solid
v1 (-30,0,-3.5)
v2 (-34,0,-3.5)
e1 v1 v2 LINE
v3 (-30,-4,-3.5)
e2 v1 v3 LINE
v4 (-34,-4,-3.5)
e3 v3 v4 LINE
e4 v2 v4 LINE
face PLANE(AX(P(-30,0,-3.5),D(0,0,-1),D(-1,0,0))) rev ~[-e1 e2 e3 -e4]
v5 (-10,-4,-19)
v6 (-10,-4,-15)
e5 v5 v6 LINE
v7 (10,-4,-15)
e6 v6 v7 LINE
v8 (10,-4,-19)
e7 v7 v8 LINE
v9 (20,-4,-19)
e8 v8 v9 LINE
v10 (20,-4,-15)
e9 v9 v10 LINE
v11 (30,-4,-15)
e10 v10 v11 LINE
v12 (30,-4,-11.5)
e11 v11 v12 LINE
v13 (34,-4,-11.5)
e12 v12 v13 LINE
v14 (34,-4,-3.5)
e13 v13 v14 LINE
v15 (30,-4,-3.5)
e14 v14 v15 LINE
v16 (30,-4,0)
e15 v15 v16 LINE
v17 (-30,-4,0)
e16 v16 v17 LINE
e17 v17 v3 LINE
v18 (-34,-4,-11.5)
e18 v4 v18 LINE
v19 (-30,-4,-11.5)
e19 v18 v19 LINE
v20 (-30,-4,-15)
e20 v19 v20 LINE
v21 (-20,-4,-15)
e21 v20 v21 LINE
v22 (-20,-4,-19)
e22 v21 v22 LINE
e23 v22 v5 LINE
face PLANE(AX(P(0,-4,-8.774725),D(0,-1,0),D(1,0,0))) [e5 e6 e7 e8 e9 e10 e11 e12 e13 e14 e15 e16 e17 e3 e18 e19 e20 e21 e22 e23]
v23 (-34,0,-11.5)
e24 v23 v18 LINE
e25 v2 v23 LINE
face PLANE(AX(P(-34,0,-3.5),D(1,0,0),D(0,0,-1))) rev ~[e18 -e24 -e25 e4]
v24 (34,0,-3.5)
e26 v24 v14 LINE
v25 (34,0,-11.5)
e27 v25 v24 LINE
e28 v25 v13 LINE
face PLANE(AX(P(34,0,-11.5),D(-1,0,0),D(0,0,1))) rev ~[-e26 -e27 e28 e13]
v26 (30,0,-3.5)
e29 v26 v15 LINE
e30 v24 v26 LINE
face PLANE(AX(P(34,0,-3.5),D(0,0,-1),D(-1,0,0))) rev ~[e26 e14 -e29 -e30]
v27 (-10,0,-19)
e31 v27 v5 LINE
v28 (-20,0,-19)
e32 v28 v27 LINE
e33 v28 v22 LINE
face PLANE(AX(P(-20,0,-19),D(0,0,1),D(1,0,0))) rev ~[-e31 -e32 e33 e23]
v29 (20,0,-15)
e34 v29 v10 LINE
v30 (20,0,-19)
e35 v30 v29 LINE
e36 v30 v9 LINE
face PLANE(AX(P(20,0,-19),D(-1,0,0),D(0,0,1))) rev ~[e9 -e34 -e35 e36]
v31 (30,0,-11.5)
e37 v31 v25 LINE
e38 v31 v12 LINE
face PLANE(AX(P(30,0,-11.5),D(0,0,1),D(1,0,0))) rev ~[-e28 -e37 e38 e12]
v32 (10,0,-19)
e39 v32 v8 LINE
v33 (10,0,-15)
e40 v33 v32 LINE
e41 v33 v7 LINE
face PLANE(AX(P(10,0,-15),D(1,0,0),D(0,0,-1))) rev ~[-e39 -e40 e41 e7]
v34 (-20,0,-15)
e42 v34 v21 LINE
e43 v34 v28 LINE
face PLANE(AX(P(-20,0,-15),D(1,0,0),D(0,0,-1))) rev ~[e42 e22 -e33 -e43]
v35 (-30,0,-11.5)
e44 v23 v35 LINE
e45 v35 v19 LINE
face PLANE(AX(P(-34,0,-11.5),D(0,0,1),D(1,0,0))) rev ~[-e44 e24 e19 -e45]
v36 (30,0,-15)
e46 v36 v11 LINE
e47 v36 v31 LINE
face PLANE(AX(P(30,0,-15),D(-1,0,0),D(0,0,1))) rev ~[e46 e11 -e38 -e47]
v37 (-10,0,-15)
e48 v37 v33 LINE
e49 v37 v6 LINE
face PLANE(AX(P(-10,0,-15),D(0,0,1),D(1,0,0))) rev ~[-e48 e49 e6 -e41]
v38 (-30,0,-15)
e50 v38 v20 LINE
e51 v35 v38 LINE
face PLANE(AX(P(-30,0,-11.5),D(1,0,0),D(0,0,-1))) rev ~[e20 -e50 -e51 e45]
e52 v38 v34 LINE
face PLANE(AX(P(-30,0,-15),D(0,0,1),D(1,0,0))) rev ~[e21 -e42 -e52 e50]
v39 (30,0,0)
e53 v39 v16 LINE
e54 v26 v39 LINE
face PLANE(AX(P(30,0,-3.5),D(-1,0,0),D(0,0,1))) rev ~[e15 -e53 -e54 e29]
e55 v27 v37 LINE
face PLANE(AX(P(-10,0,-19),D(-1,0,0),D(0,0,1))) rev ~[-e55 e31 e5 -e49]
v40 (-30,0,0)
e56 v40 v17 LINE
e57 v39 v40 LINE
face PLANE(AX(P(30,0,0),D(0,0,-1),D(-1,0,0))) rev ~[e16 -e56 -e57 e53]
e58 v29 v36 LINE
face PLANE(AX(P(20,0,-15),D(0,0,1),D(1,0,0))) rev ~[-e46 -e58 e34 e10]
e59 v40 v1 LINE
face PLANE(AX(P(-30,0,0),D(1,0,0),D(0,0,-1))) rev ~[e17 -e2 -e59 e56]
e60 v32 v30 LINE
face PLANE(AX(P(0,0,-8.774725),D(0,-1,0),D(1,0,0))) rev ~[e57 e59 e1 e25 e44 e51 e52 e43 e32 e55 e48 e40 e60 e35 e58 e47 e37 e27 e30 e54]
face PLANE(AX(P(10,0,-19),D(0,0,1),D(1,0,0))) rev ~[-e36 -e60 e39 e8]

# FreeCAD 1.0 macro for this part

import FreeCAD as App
import Part
import Sketcher

doc = App.newDocument("Part")
params = doc.addObject("Spreadsheet::Sheet", "Params")
for row, (alias, value) in enumerate([
    ("sketch1_width", "60 mm"),
    ("sketch1_width2", "4 mm"),
    ("sketch1_width3", "10 mm"),
    ("sketch1_height", "8 mm"),
    ("sketch1_height2", "3.5 mm"),
    ("pad1_length", "4 mm"),
], start=1):
    params.set(f"A{row}", alias)
    params.set(f"B{row}", "=" + value)
    params.setAlias(f"B{row}", alias)

body = doc.addObject("PartDesign::Body", "Body")

# Sketch on XZ plane
sketch1 = doc.addObject("Sketcher::SketchObject", "Sketch")
body.addObject(sketch1)
sketch1.AttachmentSupport = (doc.XZ_Plane, [""])
sketch1.MapMode = "FlatFace"
sketch1.addGeometry(Part.LineSegment(App.Vector(30, 0, 0), App.Vector(-30, 0, 0)), False)
sketch1.addGeometry(Part.LineSegment(App.Vector(-30, 0, 0), App.Vector(-30, -3.5, 0)), False)
sketch1.addGeometry(Part.LineSegment(App.Vector(-30, -3.5, 0), App.Vector(-34, -3.5, 0)), False)
sketch1.addGeometry(Part.LineSegment(App.Vector(-34, -3.5, 0), App.Vector(-34, -11.5, 0)), False)
sketch1.addGeometry(Part.LineSegment(App.Vector(-34, -11.5, 0), App.Vector(-30, -11.5, 0)), False)
sketch1.addGeometry(Part.LineSegment(App.Vector(-30, -11.5, 0), App.Vector(-30, -15, 0)), False)
sketch1.addGeometry(Part.LineSegment(App.Vector(-30, -15, 0), App.Vector(-20, -15, 0)), False)
sketch1.addGeometry(Part.LineSegment(App.Vector(-20, -15, 0), App.Vector(-20, -19, 0)), False)
sketch1.addGeometry(Part.LineSegment(App.Vector(-20, -19, 0), App.Vector(-10, -19, 0)), False)
sketch1.addGeometry(Part.LineSegment(App.Vector(-10, -19, 0), App.Vector(-10, -15, 0)), False)
sketch1.addGeometry(Part.LineSegment(App.Vector(-10, -15, 0), App.Vector(10, -15, 0)), False)
sketch1.addGeometry(Part.LineSegment(App.Vector(10, -15, 0), App.Vector(10, -19, 0)), False)
sketch1.addGeometry(Part.LineSegment(App.Vector(10, -19, 0), App.Vector(20, -19, 0)), False)
sketch1.addGeometry(Part.LineSegment(App.Vector(20, -19, 0), App.Vector(20, -15, 0)), False)
sketch1.addGeometry(Part.LineSegment(App.Vector(20, -15, 0), App.Vector(30, -15, 0)), False)
sketch1.addGeometry(Part.LineSegment(App.Vector(30, -15, 0), App.Vector(30, -11.5, 0)), False)
sketch1.addGeometry(Part.LineSegment(App.Vector(30, -11.5, 0), App.Vector(34, -11.5, 0)), False)
sketch1.addGeometry(Part.LineSegment(App.Vector(34, -11.5, 0), App.Vector(34, -3.5, 0)), False)
sketch1.addGeometry(Part.LineSegment(App.Vector(34, -3.5, 0), App.Vector(30, -3.5, 0)), False)
sketch1.addGeometry(Part.LineSegment(App.Vector(30, -3.5, 0), App.Vector(30, 0, 0)), False)
sketch1.addConstraint(Sketcher.Constraint("Coincident", 0, 2, 1, 1))
sketch1.addConstraint(Sketcher.Constraint("Coincident", 1, 2, 2, 1))
sketch1.addConstraint(Sketcher.Constraint("Coincident", 2, 2, 3, 1))
sketch1.addConstraint(Sketcher.Constraint("Coincident", 3, 2, 4, 1))
sketch1.addConstraint(Sketcher.Constraint("Coincident", 4, 2, 5, 1))
sketch1.addConstraint(Sketcher.Constraint("Coincident", 5, 2, 6, 1))
sketch1.addConstraint(Sketcher.Constraint("Coincident", 6, 2, 7, 1))
sketch1.addConstraint(Sketcher.Constraint("Coincident", 7, 2, 8, 1))
sketch1.addConstraint(Sketcher.Constraint("Coincident", 8, 2, 9, 1))
sketch1.addConstraint(Sketcher.Constraint("Coincident", 9, 2, 10, 1))
sketch1.addConstraint(Sketcher.Constraint("Coincident", 10, 2, 11, 1))
sketch1.addConstraint(Sketcher.Constraint("Coincident", 11, 2, 12, 1))
sketch1.addConstraint(Sketcher.Constraint("Coincident", 12, 2, 13, 1))
sketch1.addConstraint(Sketcher.Constraint("Coincident", 13, 2, 14, 1))
sketch1.addConstraint(Sketcher.Constraint("Coincident", 14, 2, 15, 1))
sketch1.addConstraint(Sketcher.Constraint("Coincident", 15, 2, 16, 1))
sketch1.addConstraint(Sketcher.Constraint("Coincident", 16, 2, 17, 1))
sketch1.addConstraint(Sketcher.Constraint("Coincident", 17, 2, 18, 1))
sketch1.addConstraint(Sketcher.Constraint("Coincident", 18, 2, 19, 1))
sketch1.addConstraint(Sketcher.Constraint("Coincident", 19, 2, 0, 1))
sketch1.addConstraint(Sketcher.Constraint("Horizontal", 0))
sketch1.addConstraint(Sketcher.Constraint("Vertical", 1))
sketch1.addConstraint(Sketcher.Constraint("Horizontal", 2))
sketch1.addConstraint(Sketcher.Constraint("Vertical", 3))
sketch1.addConstraint(Sketcher.Constraint("Horizontal", 4))
sketch1.addConstraint(Sketcher.Constraint("Vertical", 5))
sketch1.addConstraint(Sketcher.Constraint("Horizontal", 6))
sketch1.addConstraint(Sketcher.Constraint("Vertical", 7))
sketch1.addConstraint(Sketcher.Constraint("Horizontal", 8))
sketch1.addConstraint(Sketcher.Constraint("Vertical", 9))
sketch1.addConstraint(Sketcher.Constraint("Horizontal", 10))
sketch1.addConstraint(Sketcher.Constraint("Vertical", 11))
sketch1.addConstraint(Sketcher.Constraint("Horizontal", 12))
sketch1.addConstraint(Sketcher.Constraint("Vertical", 13))
sketch1.addConstraint(Sketcher.Constraint("Horizontal", 14))
sketch1.addConstraint(Sketcher.Constraint("Vertical", 15))
sketch1.addConstraint(Sketcher.Constraint("Horizontal", 16))
sketch1.addConstraint(Sketcher.Constraint("Vertical", 17))
sketch1.addConstraint(Sketcher.Constraint("Horizontal", 18))
sketch1.addConstraint(Sketcher.Constraint("Vertical", 19))
sketch1.addConstraint(Sketcher.Constraint("Symmetric", 0, 2, 19, 2, -1, 1))
sketch1.addConstraint(Sketcher.Constraint("Symmetric", 8, 2, 11, 2, -2))
sketch1.addConstraint(Sketcher.Constraint("Symmetric", 6, 2, 13, 2, -2))
sketch1.addConstraint(Sketcher.Constraint("Symmetric", 4, 2, 15, 2, -2))
sketch1.addConstraint(Sketcher.Constraint("Symmetric", 2, 2, 17, 2, -2))
sketch1.addConstraint(Sketcher.Constraint("Horizontal", 6, 2, 9, 2))
sketch1.addConstraint(Sketcher.Constraint("Vertical", 1, 2, 4, 2))
sketch1.addConstraint(Sketcher.Constraint("Equal", 6, 8))
sketch1.addConstraint(Sketcher.Constraint("Equal", 1, 5))
sketch1.addConstraint(Sketcher.Constraint("Equal", 18, 7))
sketch1.addConstraint(Sketcher.Constraint("DistanceX", 0, 2, 0, 1, 60.0))
sketch1.addConstraint(Sketcher.Constraint("DistanceX", 2, 2, 2, 1, 4.0))
sketch1.addConstraint(Sketcher.Constraint("DistanceX", 6, 1, 6, 2, 10.0))
sketch1.addConstraint(Sketcher.Constraint("DistanceY", 3, 2, 3, 1, 8.0))
sketch1.addConstraint(Sketcher.Constraint("DistanceY", 1, 2, 1, 1, 3.5))
sketch1.setExpression("Constraints[50]", "Params.sketch1_width")
sketch1.setExpression("Constraints[51]", "Params.sketch1_width2")
sketch1.setExpression("Constraints[52]", "Params.sketch1_width3")
sketch1.setExpression("Constraints[53]", "Params.sketch1_height")
sketch1.setExpression("Constraints[54]", "Params.sketch1_height2")
pad1 = doc.addObject("PartDesign::Pad", "Pad")
body.addObject(pad1)
pad1.Profile = sketch1
pad1.setExpression("Length", "Params.pad1_length")

doc.recompute()
